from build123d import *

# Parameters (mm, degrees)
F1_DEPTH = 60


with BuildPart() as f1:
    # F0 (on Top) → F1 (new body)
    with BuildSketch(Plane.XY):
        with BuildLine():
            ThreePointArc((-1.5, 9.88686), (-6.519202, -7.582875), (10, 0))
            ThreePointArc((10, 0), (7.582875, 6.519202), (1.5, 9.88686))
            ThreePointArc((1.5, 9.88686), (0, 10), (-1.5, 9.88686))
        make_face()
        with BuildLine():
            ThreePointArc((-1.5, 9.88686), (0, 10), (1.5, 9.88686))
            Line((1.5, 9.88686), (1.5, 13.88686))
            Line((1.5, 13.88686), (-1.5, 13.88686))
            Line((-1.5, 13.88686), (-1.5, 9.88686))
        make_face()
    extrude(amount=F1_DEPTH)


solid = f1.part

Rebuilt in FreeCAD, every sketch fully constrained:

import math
import FreeCAD as App
import Part
import Sketcher

V = App.Vector
Q = App.Units.Quantity

doc = App.newDocument("Part")
body = doc.addObject("PartDesign::Body", "Body")

sketch1 = body.newObject("Sketcher::SketchObject", "Sketch")
sketch1.AttachmentSupport = (doc.getObject("XY_Plane"), [""])
sketch1.MapMode = "FlatFace"
sketch1.addGeometry(Part.ArcOfCircle(Part.Circle(V(0, 0, 0), V(0, 0, 1), 10), math.radians(99), math.radians(360)), False)
sketch1.addGeometry(Part.ArcOfCircle(Part.Circle(V(0, 0, 0), V(0, 0, 1), 10), math.radians(0), math.radians(81)), False)
sketch1.addGeometry(Part.LineSegment(V(1.5, 9.9, 0), V(1.5, 13.9, 0)), False)
sketch1.addGeometry(Part.LineSegment(V(1.5, 13.9, 0), V(-1.5, 13.9, 0)), False)
sketch1.addGeometry(Part.LineSegment(V(-1.5, 13.9, 0), V(-1.5, 9.9, 0)), False)
sketch1.addConstraint(Sketcher.Constraint("Tangent", 0, 2, 1, 1))
sketch1.addConstraint(Sketcher.Constraint("Coincident", 1, 2, 2, 1))
sketch1.addConstraint(Sketcher.Constraint("Coincident", 2, 2, 3, 1))
sketch1.addConstraint(Sketcher.Constraint("Coincident", 3, 2, 4, 1))
sketch1.addConstraint(Sketcher.Constraint("Coincident", 4, 2, 0, 1))
sketch1.addConstraint(Sketcher.Constraint("Vertical", 2))
sketch1.addConstraint(Sketcher.Constraint("Horizontal", 3))
sketch1.addConstraint(Sketcher.Constraint("Vertical", 4))
sketch1.addConstraint(Sketcher.Constraint("Coincident", 0, 3, -1, 1))
sketch1.addConstraint(Sketcher.Constraint("Symmetric", 1, 2, 4, 2, -2))
sketch1.addConstraint(Sketcher.Constraint("PointOnObject", 0, 2, -1))
sketch1.addConstraint(Sketcher.Constraint("Radius", 0, Q("10 mm")))
sketch1.addConstraint(Sketcher.Constraint("DistanceX", 3, 2, 3, 1, Q("3 mm")))
sketch1.addConstraint(Sketcher.Constraint("DistanceY", 2, 1, 2, 2, Q("4 mm")))
pad1 = body.newObject("PartDesign::Pad", "Pad")
pad1.Profile = sketch1
pad1.Length = 60

doc.recompute()
